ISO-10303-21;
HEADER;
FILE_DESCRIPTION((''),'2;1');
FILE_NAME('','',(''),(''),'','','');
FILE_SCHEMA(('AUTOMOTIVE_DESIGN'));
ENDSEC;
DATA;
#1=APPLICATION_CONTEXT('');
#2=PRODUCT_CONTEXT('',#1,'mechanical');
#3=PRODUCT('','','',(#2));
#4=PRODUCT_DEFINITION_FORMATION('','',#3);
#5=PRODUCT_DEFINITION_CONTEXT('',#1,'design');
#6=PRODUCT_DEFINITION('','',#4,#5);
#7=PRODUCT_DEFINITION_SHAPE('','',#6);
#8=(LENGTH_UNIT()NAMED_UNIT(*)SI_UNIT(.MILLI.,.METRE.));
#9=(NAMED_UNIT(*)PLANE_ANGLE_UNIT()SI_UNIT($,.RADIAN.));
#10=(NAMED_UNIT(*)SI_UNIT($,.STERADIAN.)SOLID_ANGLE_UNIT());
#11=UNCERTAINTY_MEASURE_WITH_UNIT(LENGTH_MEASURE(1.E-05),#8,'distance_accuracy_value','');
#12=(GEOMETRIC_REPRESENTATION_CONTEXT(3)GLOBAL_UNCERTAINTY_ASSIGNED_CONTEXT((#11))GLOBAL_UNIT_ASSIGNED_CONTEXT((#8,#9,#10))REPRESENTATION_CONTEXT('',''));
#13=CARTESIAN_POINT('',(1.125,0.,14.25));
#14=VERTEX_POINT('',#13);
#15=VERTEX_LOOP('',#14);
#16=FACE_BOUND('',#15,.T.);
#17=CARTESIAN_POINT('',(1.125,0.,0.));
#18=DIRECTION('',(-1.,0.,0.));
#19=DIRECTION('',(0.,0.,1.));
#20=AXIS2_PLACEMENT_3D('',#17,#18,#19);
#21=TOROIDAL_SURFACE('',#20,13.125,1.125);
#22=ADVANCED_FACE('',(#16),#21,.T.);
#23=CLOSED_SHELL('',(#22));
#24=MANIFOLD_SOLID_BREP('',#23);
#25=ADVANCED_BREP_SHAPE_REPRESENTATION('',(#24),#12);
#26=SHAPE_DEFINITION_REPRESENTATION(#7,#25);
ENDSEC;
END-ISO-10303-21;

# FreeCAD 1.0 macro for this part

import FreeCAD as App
import Part
import Sketcher
from FreeCAD import Vector
Q = App.Units.Quantity

doc = App.newDocument("Part")
params = doc.addObject("Spreadsheet::Sheet", "Params")
for row, (alias, value) in enumerate([
    ("sketch1_diameter", "2.25 mm"),
    ("revolution_angle", "360 deg"),
], start=1):
    params.set(f"A{row}", alias)
    params.set(f"B{row}", "=" + value)
    params.setAlias(f"B{row}", alias)

body = doc.addObject("PartDesign::Body", "Body")

sketch1 = body.newObject("Sketcher::SketchObject", "Sketch")
sketch1.AttachmentSupport = (doc.getObject("XY_Plane"), [""])
sketch1.MapMode = "FlatFace"
sketch1.addGeometry(Part.Circle(Vector(1.1, 13.1, 0), Vector(0, 0, 1), 1.1), False)
sketch1.addConstraint(Sketcher.Constraint("Diameter", 0, Q("2.25 mm")))
sketch1.addConstraint(Sketcher.Constraint("DistanceX", -1, 1, 0, 3, Q("1.125 mm")))
sketch1.addConstraint(Sketcher.Constraint("DistanceY", -1, 1, 0, 3, Q("13.125 mm")))
sketch1.setExpression("Constraints[0]", "Params.sketch1_diameter")
revolution = body.newObject("PartDesign::Revolution", "Revolution")
revolution.Profile = sketch1
revolution.ReferenceAxis = (sketch1, ["H_Axis"])
revolution.setExpression("Angle", "Params.revolution_angle")

doc.recompute()
